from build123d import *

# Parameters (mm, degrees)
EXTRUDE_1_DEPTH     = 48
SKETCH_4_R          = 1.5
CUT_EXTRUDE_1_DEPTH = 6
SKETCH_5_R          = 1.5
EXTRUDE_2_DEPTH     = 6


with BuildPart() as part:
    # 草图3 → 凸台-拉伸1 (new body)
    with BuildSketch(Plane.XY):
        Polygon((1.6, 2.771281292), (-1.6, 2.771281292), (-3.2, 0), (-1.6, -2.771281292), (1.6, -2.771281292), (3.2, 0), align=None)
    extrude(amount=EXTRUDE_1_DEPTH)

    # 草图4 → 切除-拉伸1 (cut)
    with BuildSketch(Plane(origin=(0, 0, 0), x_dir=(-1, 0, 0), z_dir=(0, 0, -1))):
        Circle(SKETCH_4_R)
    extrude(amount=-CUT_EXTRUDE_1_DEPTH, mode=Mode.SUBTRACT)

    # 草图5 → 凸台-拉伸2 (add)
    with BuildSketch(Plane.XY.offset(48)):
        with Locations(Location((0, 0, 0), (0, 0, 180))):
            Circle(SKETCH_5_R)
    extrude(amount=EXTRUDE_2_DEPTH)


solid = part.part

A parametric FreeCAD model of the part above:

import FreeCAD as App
import Part
import Sketcher
from FreeCAD import Vector
Q = App.Units.Quantity

doc = App.newDocument("Part")
body = doc.addObject("PartDesign::Body", "Body")

# Sketch on XY plane
sketch1 = body.newObject("Sketcher::SketchObject", "Sketch")
sketch1.AttachmentSupport = (doc.getObject("XY_Plane"), [""])
sketch1.MapMode = "FlatFace"
sketch1.addGeometry([
    Part.LineSegment(Vector(1.6, 2.771281, 0), Vector(-1.6, 2.771281, 0)),  # 0
    Part.LineSegment(Vector(-1.6, 2.771281, 0), Vector(-3.2, 0, 0)),  # 1
    Part.LineSegment(Vector(-3.2, 0, 0), Vector(-1.6, -2.771281, 0)),  # 2
    Part.LineSegment(Vector(-1.6, -2.771281, 0), Vector(1.6, -2.771281, 0)),  # 3
    Part.LineSegment(Vector(1.6, -2.771281, 0), Vector(3.2, 0, 0)),  # 4
    Part.LineSegment(Vector(3.2, 0, 0), Vector(1.6, 2.771281, 0)),  # 5
], False)
sketch1.addConstraint([
    Sketcher.Constraint("Coincident", 0, 2, 1, 1),
    Sketcher.Constraint("Coincident", 1, 2, 2, 1),
    Sketcher.Constraint("Coincident", 2, 2, 3, 1),
    Sketcher.Constraint("Coincident", 3, 2, 4, 1),
    Sketcher.Constraint("Coincident", 4, 2, 5, 1),
    Sketcher.Constraint("Coincident", 5, 2, 0, 1),
    Sketcher.Constraint("Horizontal", 0),
    Sketcher.Constraint("Horizontal", 3),
    Sketcher.Constraint("Symmetric", 0, 2, 3, 2, -1, 1),
    Sketcher.Constraint("Symmetric", 1, 2, 4, 2, -1, 1),
    Sketcher.Constraint("PointOnObject", 1, 2, -1),
    Sketcher.Constraint("Parallel", 2, 5),
    Sketcher.Constraint("Vertical", 0, 2, 2, 2),
    Sketcher.Constraint("Angle", 1, Q("-120 deg")),
    Sketcher.Constraint("DistanceX", 0, 2, 0, 1, Q("3.2 mm")),
    Sketcher.Constraint("Distance", 1, Q("3.2 mm")),
])
pad1 = body.newObject("PartDesign::Pad", "Pad")
pad1.Profile = sketch1
pad1.Length = 48

# Sketch on XY plane
sketch2 = body.newObject("Sketcher::SketchObject", "Sketch001")
sketch2.AttachmentSupport = (doc.getObject("XY_Plane"), [""])
sketch2.MapMode = "FlatFace"
sketch2.addGeometry(Part.Circle(Vector(0, 0, 0), Vector(0, 0, 1), 1.5), False)
sketch2.addConstraint([
    Sketcher.Constraint("Coincident", 0, 3, -1, 1),
    Sketcher.Constraint("Diameter", 0, Q("3 mm")),
])
pocket1 = body.newObject("PartDesign::Pocket", "Pocket")
pocket1.Profile = sketch2
pocket1.Length = 6
pocket1.Reversed = True

# Sketch on XY plane
sketch3 = body.newObject("Sketcher::SketchObject", "Sketch002")
sketch3.AttachmentSupport = (doc.getObject("XY_Plane"), [""])
sketch3.MapMode = "FlatFace"
sketch3.AttachmentOffset = App.Placement(Vector(0, 0, 48), App.Rotation())
sketch3.addGeometry(Part.Circle(Vector(0, 0, 0), Vector(0, 0, 1), 1.5), False)
sketch3.addConstraint([
    Sketcher.Constraint("Coincident", 0, 3, -1, 1),
    Sketcher.Constraint("Diameter", 0, Q("3 mm")),
])
pad2 = body.newObject("PartDesign::Pad", "Pad001")
pad2.Profile = sketch3
pad2.Length = 6

doc.recompute()
